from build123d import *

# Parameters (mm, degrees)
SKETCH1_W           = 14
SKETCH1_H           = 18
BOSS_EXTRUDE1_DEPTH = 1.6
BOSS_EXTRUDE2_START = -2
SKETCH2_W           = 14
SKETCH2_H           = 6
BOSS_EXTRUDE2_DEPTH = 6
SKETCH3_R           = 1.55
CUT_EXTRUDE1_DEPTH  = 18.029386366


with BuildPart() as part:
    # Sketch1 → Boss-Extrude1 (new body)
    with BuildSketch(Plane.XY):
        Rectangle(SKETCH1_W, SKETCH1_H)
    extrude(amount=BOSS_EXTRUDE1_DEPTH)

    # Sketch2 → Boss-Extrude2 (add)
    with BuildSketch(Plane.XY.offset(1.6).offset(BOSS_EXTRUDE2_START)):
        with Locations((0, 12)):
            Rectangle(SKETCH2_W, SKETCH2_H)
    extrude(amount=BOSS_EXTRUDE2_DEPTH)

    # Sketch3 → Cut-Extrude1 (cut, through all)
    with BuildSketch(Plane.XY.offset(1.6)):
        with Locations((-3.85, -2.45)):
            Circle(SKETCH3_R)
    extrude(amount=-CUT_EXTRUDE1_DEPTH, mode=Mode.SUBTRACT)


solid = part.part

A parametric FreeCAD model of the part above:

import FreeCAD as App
import Part
import Sketcher
from FreeCAD import Vector


def add_polygon(sketch, points):
    """Adds a closed chain of lines whose ends are joined by coincident constraints."""
    first, n = sketch.GeometryCount, len(points)
    for a, b in zip(points, points[1:] + points[:1]):
        sketch.addGeometry(Part.LineSegment(App.Vector(*a, 0), App.Vector(*b, 0)), False)
    for i in range(n):
        sketch.addConstraint(Sketcher.Constraint("Coincident", first + i, 2, first + (i + 1) % n, 1))

doc = App.newDocument("Part")
body = doc.addObject("PartDesign::Body", "Body")

# Sketch on XY plane
sketch1 = doc.addObject("Sketcher::SketchObject", "Sketch")
body.addObject(sketch1)
sketch1.AttachmentSupport = (doc.XY_Plane, [""])
sketch1.MapMode = "FlatFace"
add_polygon(sketch1, [(-7, 9), (-7, -9), (7, -9), (7, 9)])  # lines 0-3
sketch1.addConstraint(Sketcher.Constraint("Vertical", 0))
sketch1.addConstraint(Sketcher.Constraint("Horizontal", 1))
sketch1.addConstraint(Sketcher.Constraint("Vertical", 2))
sketch1.addConstraint(Sketcher.Constraint("Horizontal", 3))
sketch1.addConstraint(Sketcher.Constraint("Symmetric", 0, 2, 2, 2, -1, 1))
sketch1.addConstraint(Sketcher.Constraint("DistanceX", 1, 1, 1, 2, 14.0))
sketch1.addConstraint(Sketcher.Constraint("DistanceY", 0, 2, 0, 1, 18.0))
pad1 = doc.addObject("PartDesign::Pad", "Pad")
body.addObject(pad1)
pad1.Profile = sketch1
pad1.Length = 1.6

# Sketch on XY plane
sketch2 = doc.addObject("Sketcher::SketchObject", "Sketch001")
body.addObject(sketch2)
sketch2.AttachmentSupport = (doc.XY_Plane, [""])
sketch2.MapMode = "FlatFace"
sketch2.AttachmentOffset = App.Placement(Vector(0, 0, -0.4), App.Rotation())
add_polygon(sketch2, [(-7, 15), (-7, 9), (7, 9), (7, 15)])  # lines 0-3
sketch2.addConstraint(Sketcher.Constraint("Vertical", 0))
sketch2.addConstraint(Sketcher.Constraint("Horizontal", 1))
sketch2.addConstraint(Sketcher.Constraint("Vertical", 2))
sketch2.addConstraint(Sketcher.Constraint("Horizontal", 3))
sketch2.addConstraint(Sketcher.Constraint("DistanceX", 1, 1, 1, 2, 14.0))
sketch2.addConstraint(Sketcher.Constraint("DistanceY", 0, 2, 0, 1, 6.0))
sketch2.addConstraint(Sketcher.Constraint("DistanceX", 0, 2, -1, 1, 7.0))
sketch2.addConstraint(Sketcher.Constraint("DistanceY", -1, 1, 0, 2, 9.0))
pad2 = doc.addObject("PartDesign::Pad", "Pad001")
body.addObject(pad2)
pad2.Profile = sketch2
pad2.Length = 6

# Sketch on XY plane
sketch3 = doc.addObject("Sketcher::SketchObject", "Sketch002")
body.addObject(sketch3)
sketch3.AttachmentSupport = (doc.XY_Plane, [""])
sketch3.MapMode = "FlatFace"
sketch3.AttachmentOffset = App.Placement(Vector(0, 0, 1.6), App.Rotation())
sketch3.addGeometry(Part.Circle(Vector(-3.9, -2.5, 0), Vector(0, 0, 1), 1.6), False)
sketch3.addConstraint(Sketcher.Constraint("Diameter", 0, 3.1))
sketch3.addConstraint(Sketcher.Constraint("DistanceX", 0, 3, -1, 1, 3.85))
sketch3.addConstraint(Sketcher.Constraint("DistanceY", 0, 3, -1, 1, 2.45))
pocket1 = doc.addObject("PartDesign::Pocket", "Pocket")
body.addObject(pocket1)
pocket1.Profile = sketch3
pocket1.Type = "ThroughAll"

doc.recompute()
